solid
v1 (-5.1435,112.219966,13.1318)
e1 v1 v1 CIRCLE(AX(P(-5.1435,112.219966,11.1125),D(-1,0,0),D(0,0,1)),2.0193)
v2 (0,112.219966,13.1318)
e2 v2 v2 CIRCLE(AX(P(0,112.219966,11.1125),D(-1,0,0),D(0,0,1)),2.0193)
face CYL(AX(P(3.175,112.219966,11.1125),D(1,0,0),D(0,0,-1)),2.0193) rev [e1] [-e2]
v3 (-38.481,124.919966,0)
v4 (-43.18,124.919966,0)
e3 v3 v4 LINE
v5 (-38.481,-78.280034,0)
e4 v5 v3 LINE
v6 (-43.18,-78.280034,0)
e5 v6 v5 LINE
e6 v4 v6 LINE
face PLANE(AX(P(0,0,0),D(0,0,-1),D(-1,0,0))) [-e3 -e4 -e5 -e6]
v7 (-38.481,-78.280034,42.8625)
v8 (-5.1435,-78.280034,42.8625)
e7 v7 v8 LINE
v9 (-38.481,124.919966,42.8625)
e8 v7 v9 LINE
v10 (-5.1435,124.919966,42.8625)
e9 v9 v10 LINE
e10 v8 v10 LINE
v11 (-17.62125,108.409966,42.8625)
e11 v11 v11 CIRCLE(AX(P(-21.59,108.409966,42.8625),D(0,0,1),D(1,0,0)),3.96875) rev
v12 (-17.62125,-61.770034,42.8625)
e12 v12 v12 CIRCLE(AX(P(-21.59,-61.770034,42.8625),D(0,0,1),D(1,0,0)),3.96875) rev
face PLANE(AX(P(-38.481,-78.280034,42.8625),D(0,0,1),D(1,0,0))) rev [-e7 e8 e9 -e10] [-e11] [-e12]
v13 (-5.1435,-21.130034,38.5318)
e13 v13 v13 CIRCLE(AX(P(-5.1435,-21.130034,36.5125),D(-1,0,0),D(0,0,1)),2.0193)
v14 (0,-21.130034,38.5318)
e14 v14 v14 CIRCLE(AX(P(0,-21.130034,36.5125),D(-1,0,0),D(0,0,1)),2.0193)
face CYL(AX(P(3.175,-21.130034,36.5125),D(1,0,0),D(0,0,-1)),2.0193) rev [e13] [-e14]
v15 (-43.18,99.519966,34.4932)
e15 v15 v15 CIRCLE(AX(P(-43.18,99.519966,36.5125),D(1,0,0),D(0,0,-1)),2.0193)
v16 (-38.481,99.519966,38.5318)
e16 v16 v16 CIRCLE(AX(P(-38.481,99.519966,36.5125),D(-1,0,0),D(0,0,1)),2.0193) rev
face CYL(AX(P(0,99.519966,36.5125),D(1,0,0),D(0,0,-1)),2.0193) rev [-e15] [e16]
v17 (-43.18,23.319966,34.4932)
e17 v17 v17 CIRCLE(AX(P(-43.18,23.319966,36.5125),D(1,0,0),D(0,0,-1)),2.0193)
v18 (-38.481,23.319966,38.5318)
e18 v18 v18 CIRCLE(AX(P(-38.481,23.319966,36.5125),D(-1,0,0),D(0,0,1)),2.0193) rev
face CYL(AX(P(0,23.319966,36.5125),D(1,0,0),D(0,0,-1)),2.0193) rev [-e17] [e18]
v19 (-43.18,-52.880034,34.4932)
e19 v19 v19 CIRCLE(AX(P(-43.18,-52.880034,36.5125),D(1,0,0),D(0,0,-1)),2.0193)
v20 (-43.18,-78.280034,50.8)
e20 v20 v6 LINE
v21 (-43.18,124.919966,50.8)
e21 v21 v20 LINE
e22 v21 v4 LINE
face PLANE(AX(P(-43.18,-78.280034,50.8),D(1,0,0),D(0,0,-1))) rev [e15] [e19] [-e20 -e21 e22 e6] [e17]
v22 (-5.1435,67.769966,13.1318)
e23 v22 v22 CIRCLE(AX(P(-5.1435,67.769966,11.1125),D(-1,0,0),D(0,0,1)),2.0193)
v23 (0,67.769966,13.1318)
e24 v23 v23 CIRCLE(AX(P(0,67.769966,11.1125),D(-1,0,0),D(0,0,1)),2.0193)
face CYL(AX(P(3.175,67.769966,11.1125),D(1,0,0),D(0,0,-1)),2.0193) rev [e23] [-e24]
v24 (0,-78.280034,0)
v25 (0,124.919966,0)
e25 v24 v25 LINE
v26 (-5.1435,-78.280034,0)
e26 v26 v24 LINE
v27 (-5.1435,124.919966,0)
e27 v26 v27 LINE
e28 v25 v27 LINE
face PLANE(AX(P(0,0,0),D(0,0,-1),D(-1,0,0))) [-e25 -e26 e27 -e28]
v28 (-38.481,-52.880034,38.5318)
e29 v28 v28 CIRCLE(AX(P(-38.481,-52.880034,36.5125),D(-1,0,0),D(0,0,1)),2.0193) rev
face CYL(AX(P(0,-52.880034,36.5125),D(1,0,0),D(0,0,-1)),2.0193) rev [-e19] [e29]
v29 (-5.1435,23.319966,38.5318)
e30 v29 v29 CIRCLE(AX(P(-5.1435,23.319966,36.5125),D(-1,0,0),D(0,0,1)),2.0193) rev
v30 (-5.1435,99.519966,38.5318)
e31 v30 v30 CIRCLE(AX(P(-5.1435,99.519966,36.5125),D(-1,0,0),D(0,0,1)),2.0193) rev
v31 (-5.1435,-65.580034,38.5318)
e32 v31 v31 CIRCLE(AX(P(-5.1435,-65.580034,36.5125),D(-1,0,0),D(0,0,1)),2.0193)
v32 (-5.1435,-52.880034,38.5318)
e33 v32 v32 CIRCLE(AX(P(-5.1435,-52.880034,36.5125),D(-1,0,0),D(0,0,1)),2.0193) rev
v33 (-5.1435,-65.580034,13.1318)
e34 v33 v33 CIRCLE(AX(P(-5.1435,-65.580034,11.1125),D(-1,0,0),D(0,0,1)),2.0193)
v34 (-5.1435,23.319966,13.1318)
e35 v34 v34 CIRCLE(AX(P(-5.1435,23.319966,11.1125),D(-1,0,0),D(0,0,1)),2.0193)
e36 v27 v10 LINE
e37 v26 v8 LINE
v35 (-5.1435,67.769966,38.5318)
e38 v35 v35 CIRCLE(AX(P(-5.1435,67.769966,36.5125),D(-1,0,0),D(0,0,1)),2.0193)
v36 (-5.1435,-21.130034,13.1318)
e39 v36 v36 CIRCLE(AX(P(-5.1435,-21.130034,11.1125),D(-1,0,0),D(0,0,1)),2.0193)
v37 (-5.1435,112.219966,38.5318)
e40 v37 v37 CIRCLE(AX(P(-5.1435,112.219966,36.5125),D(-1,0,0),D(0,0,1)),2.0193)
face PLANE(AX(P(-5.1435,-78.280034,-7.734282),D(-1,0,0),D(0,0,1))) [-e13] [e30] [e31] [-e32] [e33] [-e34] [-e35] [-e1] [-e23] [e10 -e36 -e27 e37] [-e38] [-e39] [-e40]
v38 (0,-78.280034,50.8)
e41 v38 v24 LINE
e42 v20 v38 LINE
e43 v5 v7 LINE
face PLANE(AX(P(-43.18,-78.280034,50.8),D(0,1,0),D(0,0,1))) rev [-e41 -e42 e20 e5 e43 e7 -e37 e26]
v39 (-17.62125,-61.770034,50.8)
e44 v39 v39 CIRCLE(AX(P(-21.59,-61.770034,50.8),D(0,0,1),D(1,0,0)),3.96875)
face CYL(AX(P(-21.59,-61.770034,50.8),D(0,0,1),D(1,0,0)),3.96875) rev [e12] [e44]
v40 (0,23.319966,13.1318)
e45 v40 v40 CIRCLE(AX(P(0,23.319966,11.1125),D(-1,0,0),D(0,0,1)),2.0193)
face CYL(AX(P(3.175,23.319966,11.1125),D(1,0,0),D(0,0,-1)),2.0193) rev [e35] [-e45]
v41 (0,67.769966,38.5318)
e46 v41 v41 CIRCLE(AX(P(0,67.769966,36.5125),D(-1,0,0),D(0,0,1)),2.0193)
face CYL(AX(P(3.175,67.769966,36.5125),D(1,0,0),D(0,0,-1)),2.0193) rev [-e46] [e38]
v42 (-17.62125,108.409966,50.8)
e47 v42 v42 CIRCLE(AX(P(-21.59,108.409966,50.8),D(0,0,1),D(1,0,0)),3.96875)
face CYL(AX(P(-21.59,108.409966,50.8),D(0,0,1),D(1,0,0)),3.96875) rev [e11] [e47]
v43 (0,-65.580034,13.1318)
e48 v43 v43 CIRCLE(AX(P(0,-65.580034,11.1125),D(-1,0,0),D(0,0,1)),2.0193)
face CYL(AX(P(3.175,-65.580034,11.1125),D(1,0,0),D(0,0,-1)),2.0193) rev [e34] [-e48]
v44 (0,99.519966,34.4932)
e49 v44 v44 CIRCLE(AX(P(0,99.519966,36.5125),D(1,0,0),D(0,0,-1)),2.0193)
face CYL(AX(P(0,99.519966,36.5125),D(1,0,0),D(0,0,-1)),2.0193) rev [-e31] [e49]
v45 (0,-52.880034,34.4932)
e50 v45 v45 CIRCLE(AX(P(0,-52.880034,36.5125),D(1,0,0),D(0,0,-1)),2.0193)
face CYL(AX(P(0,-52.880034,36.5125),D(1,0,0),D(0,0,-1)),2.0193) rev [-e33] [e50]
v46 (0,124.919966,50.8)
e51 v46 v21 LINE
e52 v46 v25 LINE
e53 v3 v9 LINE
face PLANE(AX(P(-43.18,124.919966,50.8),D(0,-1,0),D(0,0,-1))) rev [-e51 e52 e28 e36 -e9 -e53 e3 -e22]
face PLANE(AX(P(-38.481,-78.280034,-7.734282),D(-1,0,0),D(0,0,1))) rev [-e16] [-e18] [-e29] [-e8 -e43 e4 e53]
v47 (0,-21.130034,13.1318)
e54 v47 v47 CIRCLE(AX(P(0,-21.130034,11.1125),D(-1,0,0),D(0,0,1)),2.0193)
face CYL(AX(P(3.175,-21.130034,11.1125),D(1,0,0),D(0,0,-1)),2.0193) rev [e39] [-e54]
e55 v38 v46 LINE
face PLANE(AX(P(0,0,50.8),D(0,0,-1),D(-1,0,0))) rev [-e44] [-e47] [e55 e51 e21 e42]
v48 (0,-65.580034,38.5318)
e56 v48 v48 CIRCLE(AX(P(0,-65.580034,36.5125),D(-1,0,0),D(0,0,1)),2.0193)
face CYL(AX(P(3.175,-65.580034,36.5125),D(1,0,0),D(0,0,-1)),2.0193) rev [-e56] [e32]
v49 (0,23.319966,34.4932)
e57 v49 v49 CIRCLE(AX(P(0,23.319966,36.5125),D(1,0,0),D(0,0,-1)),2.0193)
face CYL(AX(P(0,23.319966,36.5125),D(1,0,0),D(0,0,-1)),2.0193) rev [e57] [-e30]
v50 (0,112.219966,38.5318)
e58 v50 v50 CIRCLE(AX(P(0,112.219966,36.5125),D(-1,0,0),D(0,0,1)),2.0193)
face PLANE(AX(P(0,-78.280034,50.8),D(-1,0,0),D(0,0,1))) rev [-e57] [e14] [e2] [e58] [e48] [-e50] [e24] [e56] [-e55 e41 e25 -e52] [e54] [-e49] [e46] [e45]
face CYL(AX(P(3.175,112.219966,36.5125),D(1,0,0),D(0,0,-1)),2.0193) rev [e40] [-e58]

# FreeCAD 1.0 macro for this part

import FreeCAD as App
import Part
import Sketcher
Q = App.Units.Quantity


def add_polygon(sketch, points):
    """Adds a closed chain of lines whose ends are joined by coincident constraints."""
    first, n = sketch.GeometryCount, len(points)
    for a, b in zip(points, points[1:] + points[:1]):
        sketch.addGeometry(Part.LineSegment(App.Vector(*a, 0), App.Vector(*b, 0)), False)
    for i in range(n):
        sketch.addConstraint(Sketcher.Constraint("Coincident", first + i, 2, first + (i + 1) % n, 1))

doc = App.newDocument("Part")
body = doc.addObject("PartDesign::Body", "Body")

sketch1 = body.newObject("Sketcher::SketchObject", "Sketch")
sketch1.AttachmentSupport = (doc.getObject("XY_Plane"), [""])
sketch1.MapMode = "FlatFace"
add_polygon(sketch1, [(-43, 125), (-43, -78), (0, -78), (0, 125)])
sketch1.addConstraint(Sketcher.Constraint("Vertical", 0))
sketch1.addConstraint(Sketcher.Constraint("Horizontal", 1))
sketch1.addConstraint(Sketcher.Constraint("Vertical", 2))
sketch1.addConstraint(Sketcher.Constraint("Horizontal", 3))
sketch1.addConstraint(Sketcher.Constraint("PointOnObject", 1, 2, -2))
sketch1.addConstraint(Sketcher.Constraint("DistanceY", 0, 2, 0, 1, Q("8 in")))
sketch1.addConstraint(Sketcher.Constraint("DistanceX", 1, 1, 1, 2, Q("1.7 in")))
sketch1.addConstraint(Sketcher.Constraint("DistanceY", 0, 2, -1, 1, Q("78.280034 mm")))
pad1 = body.newObject("PartDesign::Pad", "Pad")
pad1.Profile = sketch1
pad1.Length = Q("2 in")

sketch2 = body.newObject("Sketcher::SketchObject", "Sketch001")
sketch2.AttachmentSupport = (doc.getObject("XY_Plane"), [""])
sketch2.MapMode = "FlatFace"
sketch2.AttachmentOffset = App.Placement(App.Vector(0, 0, 2 * 25.4), App.Rotation())
sketch2.addGeometry(Part.Circle(App.Vector(-21.6, 108.4, 0), App.Vector(0, 0, 1), 4), False)
sketch2.addGeometry(Part.Circle(App.Vector(-21.6, -61.8, 0), App.Vector(0, 0, 1), 4), False)
sketch2.addConstraint(Sketcher.Constraint("Equal", 0, 1))
sketch2.addConstraint(Sketcher.Constraint("Vertical", 0, 3, 1, 3))
sketch2.addConstraint(Sketcher.Constraint("Diameter", 0, Q("0.3125 in")))
sketch2.addConstraint(Sketcher.Constraint("DistanceY", 1, 3, 0, 3, Q("6.7 in")))
sketch2.addConstraint(Sketcher.Constraint("DistanceX", 0, 3, -1, 1, Q("0.85 in")))
sketch2.addConstraint(Sketcher.Constraint("DistanceY", -1, 1, 0, 3, Q("108.409966 mm")))
doc.recompute()
hole = body.newObject("PartDesign::Hole", "Hole")
hole.Profile = sketch2
hole.ThreadType = "None"
hole.Diameter = Q("0.3125 in")
hole.DepthType = "ThroughAll"

sketch3 = body.newObject("Sketcher::SketchObject", "Sketch002")
sketch3.AttachmentSupport = (doc.getObject("YZ_Plane"), [""])
sketch3.MapMode = "FlatFace"
sketch3.addGeometry(Part.Circle(App.Vector(99.5, 36.5, 0), App.Vector(0, 0, 1), 2), False)
sketch3.addGeometry(Part.Circle(App.Vector(23.3, 36.5, 0), App.Vector(0, 0, 1), 2), False)
sketch3.addGeometry(Part.Circle(App.Vector(-52.9, 36.5, 0), App.Vector(0, 0, 1), 2), False)
sketch3.addConstraint(Sketcher.Constraint("Equal", 0, 1))
sketch3.addConstraint(Sketcher.Constraint("Equal", 1, 2))
sketch3.addConstraint(Sketcher.Constraint("Horizontal", 0, 3, 1, 3))
sketch3.addConstraint(Sketcher.Constraint("Horizontal", 1, 3, 2, 3))
sketch3.addConstraint(Sketcher.Constraint("Diameter", 0, Q("0.159 in")))
sketch3.addConstraint(Sketcher.Constraint("DistanceX", 1, 3, 0, 3, Q("3 in")))
sketch3.addConstraint(Sketcher.Constraint("DistanceX", 2, 3, 1, 3, Q("3 in")))
sketch3.addConstraint(Sketcher.Constraint("DistanceY", -1, 1, 0, 3, Q("1.4375 in")))
sketch3.addConstraint(Sketcher.Constraint("DistanceX", -1, 1, 0, 3, Q("99.519966 mm")))
doc.recompute()
hole2 = body.newObject("PartDesign::Hole", "Hole001")
hole2.Profile = sketch3
hole2.ThreadType = "None"
hole2.Diameter = Q("0.159 in")
hole2.DepthType = "ThroughAll"

sketch4 = body.newObject("Sketcher::SketchObject", "Sketch003")
sketch4.AttachmentSupport = (doc.getObject("XZ_Plane"), [""])
sketch4.MapMode = "FlatFace"
sketch4.AttachmentOffset = App.Placement(App.Vector(0, 0, -124.919966), App.Rotation())
add_polygon(sketch4, [(-38, -8), (-38, 43), (-5, 43), (-5, -8)])
sketch4.addConstraint(Sketcher.Constraint("Vertical", 0))
sketch4.addConstraint(Sketcher.Constraint("Horizontal", 1))
sketch4.addConstraint(Sketcher.Constraint("Vertical", 2))
sketch4.addConstraint(Sketcher.Constraint("Horizontal", 3))
sketch4.addConstraint(Sketcher.Constraint("DistanceX", 1, 1, 1, 2, Q("1.3125 in")))
sketch4.addConstraint(Sketcher.Constraint("DistanceX", 0, 2, -1, 1, Q("1.515 in")))
sketch4.addConstraint(Sketcher.Constraint("DistanceY", -1, 1, 0, 2, Q("1.6875 in")))
sketch4.addConstraint(Sketcher.Constraint("DistanceY", 0, 1, 0, 2, Q("50.596782 mm")))
pocket1 = body.newObject("PartDesign::Pocket", "Pocket")
pocket1.Profile = sketch4
pocket1.Type = "ThroughAll"
pocket1.Reversed = True

sketch5 = body.newObject("Sketcher::SketchObject", "Sketch004")
sketch5.AttachmentSupport = (doc.getObject("YZ_Plane"), [""])
sketch5.MapMode = "FlatFace"
sketch5.AttachmentOffset = App.Placement(App.Vector(0, 0, 0.125 * 25.4), App.Rotation())
sketch5.addGeometry(Part.Circle(App.Vector(112.2, -293.7, 0), App.Vector(0, 0, 1), 2), False)
sketch5.addGeometry(Part.Circle(App.Vector(112.2, -319.1, 0), App.Vector(0, 0, 1), 2), False)
sketch5.addGeometry(Part.Circle(App.Vector(67.8, -293.7, 0), App.Vector(0, 0, 1), 2), False)
sketch5.addGeometry(Part.Circle(App.Vector(67.8, -319.1, 0), App.Vector(0, 0, 1), 2), False)
sketch5.addGeometry(Part.Circle(App.Vector(23.3, -293.7, 0), App.Vector(0, 0, 1), 2), False)
sketch5.addGeometry(Part.Circle(App.Vector(-21.1, -293.7, 0), App.Vector(0, 0, 1), 2), False)
sketch5.addGeometry(Part.Circle(App.Vector(-21.1, -319.1, 0), App.Vector(0, 0, 1), 2), False)
sketch5.addGeometry(Part.Circle(App.Vector(-65.6, -293.7, 0), App.Vector(0, 0, 1), 2), False)
sketch5.addGeometry(Part.Circle(App.Vector(-65.6, -319.1, 0), App.Vector(0, 0, 1), 2), False)
sketch5.addGeometry(Part.Circle(App.Vector(112.2, 11.1, 0), App.Vector(0, 0, 1), 2), False)
sketch5.addGeometry(Part.Circle(App.Vector(112.2, 36.5, 0), App.Vector(0, 0, 1), 2), False)
sketch5.addGeometry(Part.Circle(App.Vector(67.8, 11.1, 0), App.Vector(0, 0, 1), 2), False)
sketch5.addGeometry(Part.Circle(App.Vector(67.8, 36.5, 0), App.Vector(0, 0, 1), 2), False)
sketch5.addGeometry(Part.Circle(App.Vector(23.3, 11.1, 0), App.Vector(0, 0, 1), 2), False)
sketch5.addGeometry(Part.Circle(App.Vector(-21.1, 11.1, 0), App.Vector(0, 0, 1), 2), False)
sketch5.addGeometry(Part.Circle(App.Vector(-21.1, 36.5, 0), App.Vector(0, 0, 1), 2), False)
sketch5.addGeometry(Part.Circle(App.Vector(-65.6, 36.5, 0), App.Vector(0, 0, 1), 2), False)
sketch5.addGeometry(Part.Circle(App.Vector(-65.6, 11.1, 0), App.Vector(0, 0, 1), 2), False)
sketch5.addConstraint(Sketcher.Constraint("Equal", 0, 1))
sketch5.addConstraint(Sketcher.Constraint("Equal", 1, 2))
sketch5.addConstraint(Sketcher.Constraint("Equal", 2, 3))
sketch5.addConstraint(Sketcher.Constraint("Equal", 3, 4))
sketch5.addConstraint(Sketcher.Constraint("Equal", 4, 5))
sketch5.addConstraint(Sketcher.Constraint("Equal", 5, 6))
sketch5.addConstraint(Sketcher.Constraint("Equal", 6, 7))
sketch5.addConstraint(Sketcher.Constraint("Equal", 7, 8))
sketch5.addConstraint(Sketcher.Constraint("Equal", 8, 9))
sketch5.addConstraint(Sketcher.Constraint("Equal", 9, 10))
sketch5.addConstraint(Sketcher.Constraint("Equal", 10, 11))
sketch5.addConstraint(Sketcher.Constraint("Equal", 11, 12))
sketch5.addConstraint(Sketcher.Constraint("Equal", 12, 13))
sketch5.addConstraint(Sketcher.Constraint("Equal", 13, 14))
sketch5.addConstraint(Sketcher.Constraint("Equal", 14, 15))
sketch5.addConstraint(Sketcher.Constraint("Equal", 15, 16))
sketch5.addConstraint(Sketcher.Constraint("Equal", 16, 17))
sketch5.addConstraint(Sketcher.Constraint("Horizontal", 0, 3, 2, 3))
sketch5.addConstraint(Sketcher.Constraint("Horizontal", 1, 3, 3, 3))
sketch5.addConstraint(Sketcher.Constraint("Horizontal", 2, 3, 4, 3))
sketch5.addConstraint(Sketcher.Constraint("Horizontal", 4, 3, 5, 3))
sketch5.addConstraint(Sketcher.Constraint("Horizontal", 3, 3, 6, 3))
sketch5.addConstraint(Sketcher.Constraint("Horizontal", 5, 3, 7, 3))
sketch5.addConstraint(Sketcher.Constraint("Horizontal", 6, 3, 8, 3))
sketch5.addConstraint(Sketcher.Constraint("Horizontal", 9, 3, 11, 3))
sketch5.addConstraint(Sketcher.Constraint("Horizontal", 10, 3, 12, 3))
sketch5.addConstraint(Sketcher.Constraint("Horizontal", 11, 3, 13, 3))
sketch5.addConstraint(Sketcher.Constraint("Horizontal", 13, 3, 14, 3))
sketch5.addConstraint(Sketcher.Constraint("Horizontal", 12, 3, 15, 3))
sketch5.addConstraint(Sketcher.Constraint("Horizontal", 15, 3, 16, 3))
sketch5.addConstraint(Sketcher.Constraint("Horizontal", 14, 3, 17, 3))
sketch5.addConstraint(Sketcher.Constraint("Vertical", 0, 3, 1, 3))
sketch5.addConstraint(Sketcher.Constraint("Vertical", 2, 3, 3, 3))
sketch5.addConstraint(Sketcher.Constraint("Vertical", 5, 3, 6, 3))
sketch5.addConstraint(Sketcher.Constraint("Vertical", 7, 3, 8, 3))
sketch5.addConstraint(Sketcher.Constraint("Vertical", 1, 3, 9, 3))
sketch5.addConstraint(Sketcher.Constraint("Vertical", 9, 3, 10, 3))
sketch5.addConstraint(Sketcher.Constraint("Vertical", 3, 3, 11, 3))
sketch5.addConstraint(Sketcher.Constraint("Vertical", 11, 3, 12, 3))
sketch5.addConstraint(Sketcher.Constraint("Vertical", 4, 3, 13, 3))
sketch5.addConstraint(Sketcher.Constraint("Vertical", 6, 3, 14, 3))
sketch5.addConstraint(Sketcher.Constraint("Vertical", 14, 3, 15, 3))
sketch5.addConstraint(Sketcher.Constraint("Vertical", 8, 3, 16, 3))
sketch5.addConstraint(Sketcher.Constraint("Vertical", 16, 3, 17, 3))
sketch5.addConstraint(Sketcher.Constraint("Diameter", 0, Q("0.159 in")))
sketch5.addConstraint(Sketcher.Constraint("DistanceY", 1, 3, 0, 3, Q("1 in")))
sketch5.addConstraint(Sketcher.Constraint("DistanceY", 0, 3, 9, 3, Q("12 in")))
sketch5.addConstraint(Sketcher.Constraint("DistanceY", 9, 3, 10, 3, Q("1 in")))
sketch5.addConstraint(Sketcher.Constraint("DistanceX", 4, 3, 0, 3, Q("3.5 in")))
sketch5.addConstraint(Sketcher.Constraint("DistanceX", 5, 3, 2, 3, Q("3.5 in")))
sketch5.addConstraint(Sketcher.Constraint("DistanceX", 7, 3, 4, 3, Q("3.5 in")))
sketch5.addConstraint(Sketcher.Constraint("DistanceX", 2, 3, 0, 3, Q("1.75 in")))
sketch5.addConstraint(Sketcher.Constraint("DistanceY", 0, 3, -1, 1, Q("11.5625 in")))
sketch5.addConstraint(Sketcher.Constraint("DistanceX", -1, 1, 0, 3, Q("112.219966 mm")))
doc.recompute()
hole3 = body.newObject("PartDesign::Hole", "Hole002")
hole3.Profile = sketch5
hole3.ThreadType = "None"
hole3.Diameter = Q("0.159 in")
hole3.DepthType = "Dimension"
hole3.Depth = Q("0.7 in")
hole3.DrillPoint = "Angled"
hole3.DrillPointAngle = 118

sketch6 = body.newObject("Sketcher::SketchObject", "Sketch005")
sketch6.AttachmentSupport = (doc.getObject("YZ_Plane"), [""])
sketch6.MapMode = "FlatFace"
sketch6.AttachmentOffset = App.Placement(App.Vector(0, 0, 0.125 * 25.4), App.Rotation())
sketch6.addGeometry(Part.Circle(App.Vector(-65.6, 11.1, 0), App.Vector(0, 0, 1), 2), False)
sketch6.addGeometry(Part.Circle(App.Vector(-65.6, 36.5, 0), App.Vector(0, 0, 1), 2), False)
sketch6.addGeometry(Part.Circle(App.Vector(-21.1, 11.1, 0), App.Vector(0, 0, 1), 2), False)
sketch6.addGeometry(Part.Circle(App.Vector(-21.1, 36.5, 0), App.Vector(0, 0, 1), 2), False)
sketch6.addGeometry(Part.Circle(App.Vector(23.3, 11.1, 0), App.Vector(0, 0, 1), 2), False)
sketch6.addGeometry(Part.Circle(App.Vector(67.8, 11.1, 0), App.Vector(0, 0, 1), 2), False)
sketch6.addGeometry(Part.Circle(App.Vector(67.8, 36.5, 0), App.Vector(0, 0, 1), 2), False)
sketch6.addGeometry(Part.Circle(App.Vector(112.2, 11.1, 0), App.Vector(0, 0, 1), 2), False)
sketch6.addGeometry(Part.Circle(App.Vector(112.2, 36.5, 0), App.Vector(0, 0, 1), 2), False)
sketch6.addGeometry(Part.Circle(App.Vector(-65.6, -293.7, 0), App.Vector(0, 0, 1), 2), False)
sketch6.addGeometry(Part.Circle(App.Vector(-65.6, -319.1, 0), App.Vector(0, 0, 1), 2), False)
sketch6.addGeometry(Part.Circle(App.Vector(-21.1, -293.7, 0), App.Vector(0, 0, 1), 2), False)
sketch6.addGeometry(Part.Circle(App.Vector(-21.1, -319.1, 0), App.Vector(0, 0, 1), 2), False)
sketch6.addGeometry(Part.Circle(App.Vector(23.3, -293.7, 0), App.Vector(0, 0, 1), 2), False)
sketch6.addGeometry(Part.Circle(App.Vector(67.8, -293.7, 0), App.Vector(0, 0, 1), 2), False)
sketch6.addGeometry(Part.Circle(App.Vector(67.8, -319.1, 0), App.Vector(0, 0, 1), 2), False)
sketch6.addGeometry(Part.Circle(App.Vector(112.2, -319.1, 0), App.Vector(0, 0, 1), 2), False)
sketch6.addGeometry(Part.Circle(App.Vector(112.2, -293.7, 0), App.Vector(0, 0, 1), 2), False)
sketch6.addConstraint(Sketcher.Constraint("Equal", 0, 1))
sketch6.addConstraint(Sketcher.Constraint("Equal", 1, 2))
sketch6.addConstraint(Sketcher.Constraint("Equal", 2, 3))
sketch6.addConstraint(Sketcher.Constraint("Equal", 3, 4))
sketch6.addConstraint(Sketcher.Constraint("Equal", 4, 5))
sketch6.addConstraint(Sketcher.Constraint("Equal", 5, 6))
sketch6.addConstraint(Sketcher.Constraint("Equal", 6, 7))
sketch6.addConstraint(Sketcher.Constraint("Equal", 7, 8))
sketch6.addConstraint(Sketcher.Constraint("Equal", 8, 9))
sketch6.addConstraint(Sketcher.Constraint("Equal", 9, 10))
sketch6.addConstraint(Sketcher.Constraint("Equal", 10, 11))
sketch6.addConstraint(Sketcher.Constraint("Equal", 11, 12))
sketch6.addConstraint(Sketcher.Constraint("Equal", 12, 13))
sketch6.addConstraint(Sketcher.Constraint("Equal", 13, 14))
sketch6.addConstraint(Sketcher.Constraint("Equal", 14, 15))
sketch6.addConstraint(Sketcher.Constraint("Equal", 15, 16))
sketch6.addConstraint(Sketcher.Constraint("Equal", 16, 17))
sketch6.addConstraint(Sketcher.Constraint("Horizontal", 0, 3, 2, 3))
sketch6.addConstraint(Sketcher.Constraint("Horizontal", 1, 3, 3, 3))
sketch6.addConstraint(Sketcher.Constraint("Horizontal", 2, 3, 4, 3))
sketch6.addConstraint(Sketcher.Constraint("Horizontal", 4, 3, 5, 3))
sketch6.addConstraint(Sketcher.Constraint("Horizontal", 3, 3, 6, 3))
sketch6.addConstraint(Sketcher.Constraint("Horizontal", 5, 3, 7, 3))
sketch6.addConstraint(Sketcher.Constraint("Horizontal", 6, 3, 8, 3))
sketch6.addConstraint(Sketcher.Constraint("Horizontal", 9, 3, 11, 3))
sketch6.addConstraint(Sketcher.Constraint("Horizontal", 10, 3, 12, 3))
sketch6.addConstraint(Sketcher.Constraint("Horizontal", 11, 3, 13, 3))
sketch6.addConstraint(Sketcher.Constraint("Horizontal", 13, 3, 14, 3))
sketch6.addConstraint(Sketcher.Constraint("Horizontal", 12, 3, 15, 3))
sketch6.addConstraint(Sketcher.Constraint("Horizontal", 15, 3, 16, 3))
sketch6.addConstraint(Sketcher.Constraint("Horizontal", 14, 3, 17, 3))
sketch6.addConstraint(Sketcher.Constraint("Vertical", 0, 3, 1, 3))
sketch6.addConstraint(Sketcher.Constraint("Vertical", 2, 3, 3, 3))
sketch6.addConstraint(Sketcher.Constraint("Vertical", 5, 3, 6, 3))
sketch6.addConstraint(Sketcher.Constraint("Vertical", 7, 3, 8, 3))
sketch6.addConstraint(Sketcher.Constraint("Vertical", 1, 3, 9, 3))
sketch6.addConstraint(Sketcher.Constraint("Vertical", 9, 3, 10, 3))
sketch6.addConstraint(Sketcher.Constraint("Vertical", 3, 3, 11, 3))
sketch6.addConstraint(Sketcher.Constraint("Vertical", 11, 3, 12, 3))
sketch6.addConstraint(Sketcher.Constraint("Vertical", 4, 3, 13, 3))
sketch6.addConstraint(Sketcher.Constraint("Vertical", 6, 3, 14, 3))
sketch6.addConstraint(Sketcher.Constraint("Vertical", 14, 3, 15, 3))
sketch6.addConstraint(Sketcher.Constraint("Vertical", 8, 3, 16, 3))
sketch6.addConstraint(Sketcher.Constraint("Vertical", 16, 3, 17, 3))
sketch6.addConstraint(Sketcher.Constraint("Diameter", 0, Q("0.159 in")))
sketch6.addConstraint(Sketcher.Constraint("DistanceY", 0, 3, 1, 3, Q("1 in")))
sketch6.addConstraint(Sketcher.Constraint("DistanceY", 9, 3, 0, 3, Q("12 in")))
sketch6.addConstraint(Sketcher.Constraint("DistanceY", 10, 3, 9, 3, Q("1 in")))
sketch6.addConstraint(Sketcher.Constraint("DistanceX", 0, 3, 4, 3, Q("3.5 in")))
sketch6.addConstraint(Sketcher.Constraint("DistanceX", 2, 3, 5, 3, Q("3.5 in")))
sketch6.addConstraint(Sketcher.Constraint("DistanceX", 4, 3, 7, 3, Q("3.5 in")))
sketch6.addConstraint(Sketcher.Constraint("DistanceX", 0, 3, 2, 3, Q("1.75 in")))
sketch6.addConstraint(Sketcher.Constraint("DistanceY", -1, 1, 0, 3, Q("0.4375 in")))
sketch6.addConstraint(Sketcher.Constraint("DistanceX", 0, 3, -1, 1, Q("65.580034 mm")))
doc.recompute()
hole4 = body.newObject("PartDesign::Hole", "Hole003")
hole4.Profile = sketch6
hole4.ThreadType = "None"
hole4.Diameter = Q("0.159 in")
hole4.DepthType = "Dimension"
hole4.Depth = Q("0.7 in")
hole4.DrillPoint = "Angled"
hole4.DrillPointAngle = 118

doc.recompute()
